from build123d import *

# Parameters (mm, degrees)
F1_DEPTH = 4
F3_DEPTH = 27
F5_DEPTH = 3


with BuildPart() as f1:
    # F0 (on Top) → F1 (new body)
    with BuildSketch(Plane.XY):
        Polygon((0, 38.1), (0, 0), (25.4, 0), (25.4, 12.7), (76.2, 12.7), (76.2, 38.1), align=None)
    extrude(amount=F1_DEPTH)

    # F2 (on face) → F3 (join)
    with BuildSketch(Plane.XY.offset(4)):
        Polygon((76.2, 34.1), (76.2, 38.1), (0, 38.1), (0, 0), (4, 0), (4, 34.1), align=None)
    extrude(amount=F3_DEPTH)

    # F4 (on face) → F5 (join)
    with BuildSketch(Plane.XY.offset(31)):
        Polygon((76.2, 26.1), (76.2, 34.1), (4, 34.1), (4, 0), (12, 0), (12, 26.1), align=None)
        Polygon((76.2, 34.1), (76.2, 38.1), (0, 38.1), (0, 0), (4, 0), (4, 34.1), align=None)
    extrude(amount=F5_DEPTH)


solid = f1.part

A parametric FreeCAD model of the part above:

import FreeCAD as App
import Part
import Sketcher
Q = App.Units.Quantity

doc = App.newDocument("Part")
body = doc.addObject("PartDesign::Body", "Body")

sketch1 = body.newObject("Sketcher::SketchObject", "Sketch")
sketch1.AttachmentSupport = (doc.getObject("XY_Plane"), [""])
sketch1.MapMode = "FlatFace"
sketch1.addGeometry([
    Part.LineSegment(App.Vector(0, 38.1, 0), App.Vector(0, 0, 0)),
    Part.LineSegment(App.Vector(0, 0, 0), App.Vector(25.4, 0, 0)),
    Part.LineSegment(App.Vector(25.4, 0, 0), App.Vector(25.4, 12.7, 0)),
    Part.LineSegment(App.Vector(25.4, 12.7, 0), App.Vector(76.2, 12.7, 0)),
    Part.LineSegment(App.Vector(76.2, 12.7, 0), App.Vector(76.2, 38.1, 0)),
    Part.LineSegment(App.Vector(76.2, 38.1, 0), App.Vector(0, 38.1, 0)),
], False)
sketch1.addConstraint([
    Sketcher.Constraint("Coincident", 0, 2, 1, 1),
    Sketcher.Constraint("Coincident", 1, 2, 2, 1),
    Sketcher.Constraint("Coincident", 2, 2, 3, 1),
    Sketcher.Constraint("Coincident", 3, 2, 4, 1),
    Sketcher.Constraint("Coincident", 4, 2, 5, 1),
    Sketcher.Constraint("Coincident", 5, 2, 0, 1),
    Sketcher.Constraint("Vertical", 0),
    Sketcher.Constraint("Horizontal", 1),
    Sketcher.Constraint("Vertical", 2),
    Sketcher.Constraint("Horizontal", 3),
    Sketcher.Constraint("Vertical", 4),
    Sketcher.Constraint("Horizontal", 5),
    Sketcher.Constraint("Coincident", 0, 2, -1, 1),
    Sketcher.Constraint("Equal", 1, 4),
    Sketcher.Constraint("DistanceX", 1, 1, 1, 2, Q("25.4 mm")),
    Sketcher.Constraint("DistanceX", 3, 1, 3, 2, Q("50.8 mm")),
    Sketcher.Constraint("DistanceY", 0, 2, 0, 1, Q("38.1 mm")),
])
pad1 = body.newObject("PartDesign::Pad", "Pad")
pad1.Profile = sketch1
pad1.Length = 4

sketch2 = body.newObject("Sketcher::SketchObject", "Sketch001")
sketch2.AttachmentSupport = (doc.getObject("XY_Plane"), [""])
sketch2.MapMode = "FlatFace"
sketch2.AttachmentOffset = App.Placement(App.Vector(0, 0, 4), App.Rotation())
sketch2.addGeometry([
    Part.LineSegment(App.Vector(76.2, 34.1, 0), App.Vector(76.2, 38.1, 0)),
    Part.LineSegment(App.Vector(76.2, 38.1, 0), App.Vector(0, 38.1, 0)),
    Part.LineSegment(App.Vector(0, 38.1, 0), App.Vector(0, 0, 0)),
    Part.LineSegment(App.Vector(0, 0, 0), App.Vector(4, 0, 0)),
    Part.LineSegment(App.Vector(4, 0, 0), App.Vector(4, 34.1, 0)),
    Part.LineSegment(App.Vector(4, 34.1, 0), App.Vector(76.2, 34.1, 0)),
], False)
sketch2.addConstraint([
    Sketcher.Constraint("Coincident", 0, 2, 1, 1),
    Sketcher.Constraint("Coincident", 1, 2, 2, 1),
    Sketcher.Constraint("Coincident", 2, 2, 3, 1),
    Sketcher.Constraint("Coincident", 3, 2, 4, 1),
    Sketcher.Constraint("Coincident", 4, 2, 5, 1),
    Sketcher.Constraint("Coincident", 5, 2, 0, 1),
    Sketcher.Constraint("Vertical", 0),
    Sketcher.Constraint("Horizontal", 1),
    Sketcher.Constraint("Vertical", 2),
    Sketcher.Constraint("Horizontal", 3),
    Sketcher.Constraint("Vertical", 4),
    Sketcher.Constraint("Horizontal", 5),
    Sketcher.Constraint("Coincident", 2, 2, -1, 1),
    Sketcher.Constraint("Equal", 3, 0),
    Sketcher.Constraint("DistanceX", 3, 1, 3, 2, Q("4 mm")),
    Sketcher.Constraint("DistanceX", 1, 2, 1, 1, Q("76.2 mm")),
    Sketcher.Constraint("DistanceY", 2, 2, 2, 1, Q("38.1 mm")),
])
pad2 = body.newObject("PartDesign::Pad", "Pad001")
pad2.Profile = sketch2
pad2.Length = 27

sketch3 = body.newObject("Sketcher::SketchObject", "Sketch002")
sketch3.AttachmentSupport = (doc.getObject("XY_Plane"), [""])
sketch3.MapMode = "FlatFace"
sketch3.AttachmentOffset = App.Placement(App.Vector(0, 0, 31), App.Rotation())
sketch3.addGeometry([
    Part.LineSegment(App.Vector(76.2, 26.1, 0), App.Vector(76.2, 38.1, 0)),
    Part.LineSegment(App.Vector(76.2, 38.1, 0), App.Vector(0, 38.1, 0)),
    Part.LineSegment(App.Vector(0, 38.1, 0), App.Vector(0, 0, 0)),
    Part.LineSegment(App.Vector(0, 0, 0), App.Vector(12, 0, 0)),
    Part.LineSegment(App.Vector(12, 0, 0), App.Vector(12, 26.1, 0)),
    Part.LineSegment(App.Vector(12, 26.1, 0), App.Vector(76.2, 26.1, 0)),
], False)
sketch3.addConstraint([
    Sketcher.Constraint("Coincident", 0, 2, 1, 1),
    Sketcher.Constraint("Coincident", 1, 2, 2, 1),
    Sketcher.Constraint("Coincident", 2, 2, 3, 1),
    Sketcher.Constraint("Coincident", 3, 2, 4, 1),
    Sketcher.Constraint("Coincident", 4, 2, 5, 1),
    Sketcher.Constraint("Coincident", 5, 2, 0, 1),
    Sketcher.Constraint("Vertical", 0),
    Sketcher.Constraint("Horizontal", 1),
    Sketcher.Constraint("Vertical", 2),
    Sketcher.Constraint("Horizontal", 3),
    Sketcher.Constraint("Vertical", 4),
    Sketcher.Constraint("Horizontal", 5),
    Sketcher.Constraint("Coincident", 2, 2, -1, 1),
    Sketcher.Constraint("Equal", 3, 0),
    Sketcher.Constraint("DistanceX", 3, 1, 3, 2, Q("12 mm")),
    Sketcher.Constraint("DistanceX", 1, 2, 1, 1, Q("76.2 mm")),
    Sketcher.Constraint("DistanceY", 2, 2, 2, 1, Q("38.1 mm")),
])
pad3 = body.newObject("PartDesign::Pad", "Pad002")
pad3.Profile = sketch3
pad3.Length = 3

doc.recompute()
